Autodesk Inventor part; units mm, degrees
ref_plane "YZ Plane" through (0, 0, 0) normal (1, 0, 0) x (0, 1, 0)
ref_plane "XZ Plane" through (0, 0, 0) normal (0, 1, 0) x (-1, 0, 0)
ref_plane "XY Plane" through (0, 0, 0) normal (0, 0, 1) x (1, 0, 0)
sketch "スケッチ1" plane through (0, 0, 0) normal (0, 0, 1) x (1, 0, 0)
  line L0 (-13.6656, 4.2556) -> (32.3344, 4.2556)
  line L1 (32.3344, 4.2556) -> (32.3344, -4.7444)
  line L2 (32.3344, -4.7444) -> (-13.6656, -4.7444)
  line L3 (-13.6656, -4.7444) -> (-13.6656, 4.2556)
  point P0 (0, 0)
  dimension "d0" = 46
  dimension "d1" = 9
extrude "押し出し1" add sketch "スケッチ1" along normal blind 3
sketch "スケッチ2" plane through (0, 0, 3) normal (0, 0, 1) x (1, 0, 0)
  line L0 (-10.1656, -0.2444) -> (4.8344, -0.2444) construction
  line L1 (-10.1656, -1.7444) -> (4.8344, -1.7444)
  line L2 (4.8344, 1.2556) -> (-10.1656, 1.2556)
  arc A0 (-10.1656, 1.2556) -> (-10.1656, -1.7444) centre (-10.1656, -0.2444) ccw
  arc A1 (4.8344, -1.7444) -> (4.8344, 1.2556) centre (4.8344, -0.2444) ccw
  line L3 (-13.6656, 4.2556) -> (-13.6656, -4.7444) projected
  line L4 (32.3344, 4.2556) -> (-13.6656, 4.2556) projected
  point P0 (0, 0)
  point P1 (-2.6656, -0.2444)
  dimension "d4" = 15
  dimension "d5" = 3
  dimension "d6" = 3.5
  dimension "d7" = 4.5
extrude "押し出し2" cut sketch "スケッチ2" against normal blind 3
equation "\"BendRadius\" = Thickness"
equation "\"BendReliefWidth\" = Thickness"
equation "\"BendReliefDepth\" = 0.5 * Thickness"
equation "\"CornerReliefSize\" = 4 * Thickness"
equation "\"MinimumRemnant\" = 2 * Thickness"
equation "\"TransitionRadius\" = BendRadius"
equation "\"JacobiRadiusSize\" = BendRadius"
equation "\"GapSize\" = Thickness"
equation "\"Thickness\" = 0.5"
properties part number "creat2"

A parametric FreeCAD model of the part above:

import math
import FreeCAD as App
import Part
import Sketcher

V = App.Vector
Q = App.Units.Quantity

doc = App.newDocument("Part")
body = doc.addObject("PartDesign::Body", "Body")

# Sketch on XY plane
sketch1 = doc.addObject("Sketcher::SketchObject", "Sketch")
body.addObject(sketch1)
sketch1.AttachmentSupport = (doc.XY_Plane, [""])
sketch1.MapMode = "FlatFace"
sketch1.addGeometry(Part.LineSegment(V(32, 4, 0), V(-14, 4, 0)), False)
sketch1.addGeometry(Part.LineSegment(V(-14, 4, 0), V(-14, -5, 0)), False)
sketch1.addGeometry(Part.LineSegment(V(-14, -5, 0), V(32, -5, 0)), False)
sketch1.addGeometry(Part.LineSegment(V(32, -5, 0), V(32, 4, 0)), False)
sketch1.addConstraint(Sketcher.Constraint("Coincident", 0, 2, 1, 1))
sketch1.addConstraint(Sketcher.Constraint("Coincident", 1, 2, 2, 1))
sketch1.addConstraint(Sketcher.Constraint("Coincident", 2, 2, 3, 1))
sketch1.addConstraint(Sketcher.Constraint("Coincident", 3, 2, 0, 1))
sketch1.addConstraint(Sketcher.Constraint("Horizontal", 0))
sketch1.addConstraint(Sketcher.Constraint("Vertical", 1))
sketch1.addConstraint(Sketcher.Constraint("Horizontal", 2))
sketch1.addConstraint(Sketcher.Constraint("Vertical", 3))
sketch1.addConstraint(Sketcher.Constraint("DistanceX", 0, 2, 0, 1, Q("46 mm")))
sketch1.addConstraint(Sketcher.Constraint("DistanceY", 1, 2, 1, 1, Q("9 mm")))
sketch1.addConstraint(Sketcher.Constraint("DistanceX", 0, 2, -1, 1, Q("13.6656 mm")))
sketch1.addConstraint(Sketcher.Constraint("DistanceY", -1, 1, 0, 2, Q("4.2556 mm")))
pad1 = doc.addObject("PartDesign::Pad", "Pad")
body.addObject(pad1)
pad1.Profile = sketch1
pad1.Length = 3

# Sketch on XY plane
sketch2 = doc.addObject("Sketcher::SketchObject", "Sketch001")
body.addObject(sketch2)
sketch2.AttachmentSupport = (doc.XY_Plane, [""])
sketch2.MapMode = "FlatFace"
sketch2.AttachmentOffset = App.Placement(V(0, 0, 3), App.Rotation())
sketch2.addGeometry(Part.ArcOfCircle(Part.Circle(V(-10.2, -0.2, 0), V(0, 0, 1), 1.5), math.radians(90), math.radians(270)), False)
sketch2.addGeometry(Part.LineSegment(V(-10.2, -1.7, 0), V(4.8, -1.7, 0)), False)
sketch2.addGeometry(Part.ArcOfCircle(Part.Circle(V(4.8, -0.2, 0), V(0, 0, 1), 1.5), math.radians(-90), math.radians(90)), False)
sketch2.addGeometry(Part.LineSegment(V(4.8, 1.3, 0), V(-10.2, 1.3, 0)), False)
sketch2.addConstraint(Sketcher.Constraint("Tangent", 0, 2, 1, 1))
sketch2.addConstraint(Sketcher.Constraint("Tangent", 1, 2, 2, 1))
sketch2.addConstraint(Sketcher.Constraint("Tangent", 2, 2, 3, 1))
sketch2.addConstraint(Sketcher.Constraint("Tangent", 3, 2, 0, 1))
sketch2.addConstraint(Sketcher.Constraint("Horizontal", 1))
sketch2.addConstraint(Sketcher.Constraint("Horizontal", 3))
sketch2.addConstraint(Sketcher.Constraint("Radius", 0, Q("1.5 mm")))
sketch2.addConstraint(Sketcher.Constraint("DistanceX", 1, 1, 1, 2, Q("15 mm")))
sketch2.addConstraint(Sketcher.Constraint("DistanceX", 0, 3, -1, 1, Q("10.1656 mm")))
sketch2.addConstraint(Sketcher.Constraint("DistanceY", 0, 3, -1, 1, Q("0.2444 mm")))
pocket1 = doc.addObject("PartDesign::Pocket", "Pocket")
body.addObject(pocket1)
pocket1.Profile = sketch2
pocket1.Length = 3

doc.recompute()
